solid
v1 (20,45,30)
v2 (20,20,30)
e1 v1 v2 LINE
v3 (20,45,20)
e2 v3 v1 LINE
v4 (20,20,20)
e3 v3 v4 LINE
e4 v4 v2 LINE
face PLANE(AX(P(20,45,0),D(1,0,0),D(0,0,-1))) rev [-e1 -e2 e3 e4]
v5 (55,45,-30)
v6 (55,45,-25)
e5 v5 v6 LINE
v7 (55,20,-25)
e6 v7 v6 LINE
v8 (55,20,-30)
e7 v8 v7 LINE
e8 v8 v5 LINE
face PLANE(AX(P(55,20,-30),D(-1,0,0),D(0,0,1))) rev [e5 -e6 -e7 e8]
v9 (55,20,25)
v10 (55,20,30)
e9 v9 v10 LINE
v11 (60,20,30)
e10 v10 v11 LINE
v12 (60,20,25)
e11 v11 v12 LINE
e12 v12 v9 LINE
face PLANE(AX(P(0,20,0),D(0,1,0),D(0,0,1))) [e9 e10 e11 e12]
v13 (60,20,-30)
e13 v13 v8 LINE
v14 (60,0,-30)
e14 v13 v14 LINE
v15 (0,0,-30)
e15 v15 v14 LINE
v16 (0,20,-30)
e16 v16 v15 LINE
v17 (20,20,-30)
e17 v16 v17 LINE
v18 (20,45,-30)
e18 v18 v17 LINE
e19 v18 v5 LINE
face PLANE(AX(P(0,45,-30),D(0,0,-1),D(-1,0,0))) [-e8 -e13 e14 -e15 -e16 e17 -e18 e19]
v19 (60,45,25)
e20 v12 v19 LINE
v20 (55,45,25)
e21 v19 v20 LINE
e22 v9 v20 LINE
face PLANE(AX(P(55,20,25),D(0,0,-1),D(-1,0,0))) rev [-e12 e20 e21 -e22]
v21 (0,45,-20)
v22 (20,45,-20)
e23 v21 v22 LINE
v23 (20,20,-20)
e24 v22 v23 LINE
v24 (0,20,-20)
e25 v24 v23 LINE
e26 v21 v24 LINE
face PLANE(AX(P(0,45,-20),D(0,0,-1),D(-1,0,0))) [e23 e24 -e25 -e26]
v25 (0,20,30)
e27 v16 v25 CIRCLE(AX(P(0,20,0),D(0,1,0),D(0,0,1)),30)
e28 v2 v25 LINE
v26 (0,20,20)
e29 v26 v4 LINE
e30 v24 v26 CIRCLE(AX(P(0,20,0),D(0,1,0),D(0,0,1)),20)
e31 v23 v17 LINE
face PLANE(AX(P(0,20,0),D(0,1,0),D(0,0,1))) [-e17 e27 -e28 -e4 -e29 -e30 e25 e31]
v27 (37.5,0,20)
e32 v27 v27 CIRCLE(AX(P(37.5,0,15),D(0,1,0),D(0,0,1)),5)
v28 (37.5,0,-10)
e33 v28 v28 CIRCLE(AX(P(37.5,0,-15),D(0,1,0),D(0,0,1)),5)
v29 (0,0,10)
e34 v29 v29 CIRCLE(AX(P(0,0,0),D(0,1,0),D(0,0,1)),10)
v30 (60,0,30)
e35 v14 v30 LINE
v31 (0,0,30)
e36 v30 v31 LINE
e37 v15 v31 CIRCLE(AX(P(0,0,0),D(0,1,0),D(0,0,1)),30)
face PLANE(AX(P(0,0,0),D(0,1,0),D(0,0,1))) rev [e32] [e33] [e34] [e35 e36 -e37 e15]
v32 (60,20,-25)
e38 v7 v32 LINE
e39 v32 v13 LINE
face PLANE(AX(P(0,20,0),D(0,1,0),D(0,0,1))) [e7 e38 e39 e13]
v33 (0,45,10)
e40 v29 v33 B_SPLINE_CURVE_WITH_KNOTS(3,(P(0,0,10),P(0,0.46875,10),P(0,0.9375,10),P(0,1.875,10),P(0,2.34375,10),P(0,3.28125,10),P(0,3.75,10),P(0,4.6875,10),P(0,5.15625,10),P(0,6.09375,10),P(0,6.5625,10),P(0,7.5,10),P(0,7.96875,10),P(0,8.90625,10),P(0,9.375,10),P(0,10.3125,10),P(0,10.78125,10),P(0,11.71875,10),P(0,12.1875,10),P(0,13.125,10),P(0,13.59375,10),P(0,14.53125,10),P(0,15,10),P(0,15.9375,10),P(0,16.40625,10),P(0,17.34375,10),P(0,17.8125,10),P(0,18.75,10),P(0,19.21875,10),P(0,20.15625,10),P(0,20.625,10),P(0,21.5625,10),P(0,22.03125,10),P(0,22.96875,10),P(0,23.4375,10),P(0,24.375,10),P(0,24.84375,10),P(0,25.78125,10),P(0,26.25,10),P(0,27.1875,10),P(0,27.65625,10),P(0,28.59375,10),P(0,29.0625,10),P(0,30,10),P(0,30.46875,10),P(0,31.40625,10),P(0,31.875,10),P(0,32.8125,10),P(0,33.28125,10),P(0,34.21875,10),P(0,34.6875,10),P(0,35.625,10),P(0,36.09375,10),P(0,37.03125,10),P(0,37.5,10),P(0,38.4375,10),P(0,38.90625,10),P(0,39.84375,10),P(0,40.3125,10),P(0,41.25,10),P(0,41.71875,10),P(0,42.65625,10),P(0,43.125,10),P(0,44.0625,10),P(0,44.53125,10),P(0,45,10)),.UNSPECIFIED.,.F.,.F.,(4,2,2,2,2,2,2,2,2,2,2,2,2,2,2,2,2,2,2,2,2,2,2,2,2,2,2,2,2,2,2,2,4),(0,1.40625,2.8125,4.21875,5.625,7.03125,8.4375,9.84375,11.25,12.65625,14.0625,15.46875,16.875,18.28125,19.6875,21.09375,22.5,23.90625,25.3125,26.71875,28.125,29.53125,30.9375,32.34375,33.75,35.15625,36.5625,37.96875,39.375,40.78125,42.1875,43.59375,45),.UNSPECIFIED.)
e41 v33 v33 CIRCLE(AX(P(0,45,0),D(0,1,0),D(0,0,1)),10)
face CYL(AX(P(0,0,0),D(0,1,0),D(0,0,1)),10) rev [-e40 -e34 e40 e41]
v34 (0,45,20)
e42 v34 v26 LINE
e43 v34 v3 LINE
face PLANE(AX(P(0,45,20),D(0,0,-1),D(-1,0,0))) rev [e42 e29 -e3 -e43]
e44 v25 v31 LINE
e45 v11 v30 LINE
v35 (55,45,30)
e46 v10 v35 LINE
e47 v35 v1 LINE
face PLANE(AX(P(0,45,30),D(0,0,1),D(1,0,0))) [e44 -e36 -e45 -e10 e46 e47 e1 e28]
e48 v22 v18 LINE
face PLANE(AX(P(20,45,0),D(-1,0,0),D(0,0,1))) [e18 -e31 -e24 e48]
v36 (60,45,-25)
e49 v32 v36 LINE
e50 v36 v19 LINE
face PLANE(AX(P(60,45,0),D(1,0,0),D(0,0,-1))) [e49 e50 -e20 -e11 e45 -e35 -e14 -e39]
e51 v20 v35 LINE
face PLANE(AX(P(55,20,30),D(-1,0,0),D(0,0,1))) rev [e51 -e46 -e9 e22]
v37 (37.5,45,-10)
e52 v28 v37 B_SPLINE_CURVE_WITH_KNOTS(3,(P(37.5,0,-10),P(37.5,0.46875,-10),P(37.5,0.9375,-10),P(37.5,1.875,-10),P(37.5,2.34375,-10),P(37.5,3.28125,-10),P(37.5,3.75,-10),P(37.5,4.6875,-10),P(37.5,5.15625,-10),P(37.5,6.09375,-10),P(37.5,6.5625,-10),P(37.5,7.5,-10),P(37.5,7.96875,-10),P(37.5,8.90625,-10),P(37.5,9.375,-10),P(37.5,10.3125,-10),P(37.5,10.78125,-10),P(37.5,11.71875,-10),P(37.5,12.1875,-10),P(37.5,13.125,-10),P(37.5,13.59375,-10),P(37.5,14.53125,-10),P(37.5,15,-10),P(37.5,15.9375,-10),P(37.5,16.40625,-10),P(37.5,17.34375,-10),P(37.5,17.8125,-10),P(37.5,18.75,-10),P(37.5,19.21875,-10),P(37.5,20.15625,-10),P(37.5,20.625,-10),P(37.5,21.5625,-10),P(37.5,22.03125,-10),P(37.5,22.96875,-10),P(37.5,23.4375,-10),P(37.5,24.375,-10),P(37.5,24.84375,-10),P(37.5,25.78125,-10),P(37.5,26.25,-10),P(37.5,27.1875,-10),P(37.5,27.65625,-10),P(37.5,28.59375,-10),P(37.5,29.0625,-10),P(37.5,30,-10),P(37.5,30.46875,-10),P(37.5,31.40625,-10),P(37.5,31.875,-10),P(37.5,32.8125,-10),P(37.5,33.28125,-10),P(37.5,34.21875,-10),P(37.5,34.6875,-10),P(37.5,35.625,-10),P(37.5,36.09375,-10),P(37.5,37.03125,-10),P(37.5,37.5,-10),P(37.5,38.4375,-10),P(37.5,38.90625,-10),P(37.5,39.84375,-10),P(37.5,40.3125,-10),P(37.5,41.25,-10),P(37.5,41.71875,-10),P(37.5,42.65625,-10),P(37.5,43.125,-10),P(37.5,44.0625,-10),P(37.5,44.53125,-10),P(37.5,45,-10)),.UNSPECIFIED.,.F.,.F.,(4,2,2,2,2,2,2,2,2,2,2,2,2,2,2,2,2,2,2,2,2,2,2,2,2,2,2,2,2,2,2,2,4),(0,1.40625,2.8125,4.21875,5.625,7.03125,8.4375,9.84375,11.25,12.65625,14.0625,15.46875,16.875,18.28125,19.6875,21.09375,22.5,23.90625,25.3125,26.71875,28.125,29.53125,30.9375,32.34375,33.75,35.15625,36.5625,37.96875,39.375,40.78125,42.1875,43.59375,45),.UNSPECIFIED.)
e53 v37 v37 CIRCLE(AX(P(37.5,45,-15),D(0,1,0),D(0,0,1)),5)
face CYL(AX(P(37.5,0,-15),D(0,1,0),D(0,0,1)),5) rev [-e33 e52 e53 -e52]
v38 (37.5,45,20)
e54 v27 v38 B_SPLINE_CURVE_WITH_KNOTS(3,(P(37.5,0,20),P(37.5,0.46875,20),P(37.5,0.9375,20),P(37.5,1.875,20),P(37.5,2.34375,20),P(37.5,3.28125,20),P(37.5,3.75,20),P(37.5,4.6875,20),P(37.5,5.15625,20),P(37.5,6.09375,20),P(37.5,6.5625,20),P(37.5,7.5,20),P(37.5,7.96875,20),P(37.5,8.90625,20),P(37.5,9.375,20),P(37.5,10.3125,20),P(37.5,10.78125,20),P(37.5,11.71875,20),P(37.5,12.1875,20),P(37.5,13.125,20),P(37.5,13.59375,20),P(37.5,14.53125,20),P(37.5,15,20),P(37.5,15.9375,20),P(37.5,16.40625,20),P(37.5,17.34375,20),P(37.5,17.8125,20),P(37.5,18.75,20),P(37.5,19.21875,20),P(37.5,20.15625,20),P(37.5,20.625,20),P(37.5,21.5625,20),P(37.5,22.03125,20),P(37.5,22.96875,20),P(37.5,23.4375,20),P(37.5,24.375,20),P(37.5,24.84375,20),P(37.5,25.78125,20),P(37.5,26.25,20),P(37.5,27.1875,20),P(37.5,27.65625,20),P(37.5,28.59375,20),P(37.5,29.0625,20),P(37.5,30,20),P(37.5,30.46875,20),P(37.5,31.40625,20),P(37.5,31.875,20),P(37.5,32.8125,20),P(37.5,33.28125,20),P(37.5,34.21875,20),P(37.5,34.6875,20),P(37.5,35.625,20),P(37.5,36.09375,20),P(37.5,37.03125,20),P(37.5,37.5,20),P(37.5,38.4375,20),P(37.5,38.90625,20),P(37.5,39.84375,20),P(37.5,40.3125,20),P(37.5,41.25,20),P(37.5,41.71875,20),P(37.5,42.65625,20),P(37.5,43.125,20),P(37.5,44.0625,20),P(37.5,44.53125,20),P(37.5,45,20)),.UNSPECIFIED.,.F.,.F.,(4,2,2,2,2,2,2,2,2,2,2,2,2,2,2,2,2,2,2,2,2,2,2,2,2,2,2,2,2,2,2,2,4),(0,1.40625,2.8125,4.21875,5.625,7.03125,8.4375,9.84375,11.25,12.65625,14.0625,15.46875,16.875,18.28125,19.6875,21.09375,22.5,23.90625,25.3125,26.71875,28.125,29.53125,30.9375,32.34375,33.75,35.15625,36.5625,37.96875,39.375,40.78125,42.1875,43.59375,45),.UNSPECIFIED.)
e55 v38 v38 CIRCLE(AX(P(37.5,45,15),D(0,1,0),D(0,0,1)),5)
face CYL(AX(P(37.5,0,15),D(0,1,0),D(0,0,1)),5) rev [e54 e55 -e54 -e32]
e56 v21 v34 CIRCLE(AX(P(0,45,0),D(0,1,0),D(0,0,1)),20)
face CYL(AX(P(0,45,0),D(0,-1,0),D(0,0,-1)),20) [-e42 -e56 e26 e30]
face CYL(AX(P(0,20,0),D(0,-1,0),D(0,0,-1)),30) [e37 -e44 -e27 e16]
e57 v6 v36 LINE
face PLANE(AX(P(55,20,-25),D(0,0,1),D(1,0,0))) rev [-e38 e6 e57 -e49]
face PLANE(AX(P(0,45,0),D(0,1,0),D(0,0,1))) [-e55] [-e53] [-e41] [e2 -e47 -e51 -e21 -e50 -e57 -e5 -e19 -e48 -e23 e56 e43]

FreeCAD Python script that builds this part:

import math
import FreeCAD as App
import Part
import Sketcher
from FreeCAD import Vector
Q = App.Units.Quantity


def add_polygon(sketch, points):
    """Adds a closed chain of lines whose ends are joined by coincident constraints."""
    first, n = sketch.GeometryCount, len(points)
    for a, b in zip(points, points[1:] + points[:1]):
        sketch.addGeometry(Part.LineSegment(App.Vector(*a, 0), App.Vector(*b, 0)), False)
    for i in range(n):
        sketch.addConstraint(Sketcher.Constraint("Coincident", first + i, 2, first + (i + 1) % n, 1))

doc = App.newDocument("Part")
body = doc.addObject("PartDesign::Body", "Body")

# Sketch on XZ plane
sketch1 = body.newObject("Sketcher::SketchObject", "Sketch")
sketch1.AttachmentSupport = (doc.getObject("XZ_Plane"), [""])
sketch1.MapMode = "FlatFace"
sketch1.addGeometry([
    Part.LineSegment(Vector(20, -20, 0), Vector(0, -20, 0)),  # 0
    Part.ArcOfCircle(Part.Circle(Vector(0, 0, 0), Vector(0, 0, 1), 20), math.radians(180), math.radians(270)),  # 1
    Part.ArcOfCircle(Part.Circle(Vector(0, 0, 0), Vector(0, 0, 1), 20), math.radians(90), math.radians(180)),  # 2
    Part.LineSegment(Vector(0, 20, 0), Vector(20, 20, 0)),  # 3
    Part.LineSegment(Vector(20, 20, 0), Vector(20, 30, 0)),  # 4
    Part.LineSegment(Vector(20, 30, 0), Vector(60, 30, 0)),  # 5
    Part.LineSegment(Vector(60, 30, 0), Vector(60, -30, 0)),  # 6
    Part.LineSegment(Vector(60, -30, 0), Vector(20, -30, 0)),  # 7
    Part.LineSegment(Vector(20, -30, 0), Vector(20, -20, 0)),  # 8
], False)
sketch1.addConstraint([
    Sketcher.Constraint("Tangent", 0, 2, 1, 2),
    Sketcher.Constraint("Tangent", 1, 1, 2, 2),
    Sketcher.Constraint("Tangent", 2, 1, 3, 1),
    Sketcher.Constraint("Coincident", 3, 2, 4, 1),
    Sketcher.Constraint("Coincident", 4, 2, 5, 1),
    Sketcher.Constraint("Coincident", 5, 2, 6, 1),
    Sketcher.Constraint("Coincident", 6, 2, 7, 1),
    Sketcher.Constraint("Coincident", 7, 2, 8, 1),
    Sketcher.Constraint("Coincident", 8, 2, 0, 1),
    Sketcher.Constraint("Horizontal", 0),
    Sketcher.Constraint("Horizontal", 3),
    Sketcher.Constraint("Vertical", 4),
    Sketcher.Constraint("Horizontal", 5),
    Sketcher.Constraint("Vertical", 6),
    Sketcher.Constraint("Horizontal", 7),
    Sketcher.Constraint("Vertical", 8),
    Sketcher.Constraint("Coincident", 1, 3, -1, 1),
    Sketcher.Constraint("Equal", 1, 2),
    Sketcher.Constraint("Symmetric", 4, 2, 7, 2, -1),
    Sketcher.Constraint("PointOnObject", 1, 1, -1),
    Sketcher.Constraint("Radius", 1, Q("20 mm")),
    Sketcher.Constraint("DistanceX", 0, 2, 0, 1, Q("20 mm")),
    Sketcher.Constraint("DistanceX", 5, 1, 5, 2, Q("40 mm")),
    Sketcher.Constraint("DistanceY", 4, 1, 4, 2, Q("10 mm")),
])
pad1 = body.newObject("PartDesign::Pad", "Pad")
pad1.Profile = sketch1
pad1.Length = 45
pad1.Reversed = True

# Sketch on XZ plane
sketch2 = body.newObject("Sketcher::SketchObject", "Sketch001")
sketch2.AttachmentSupport = (doc.getObject("XZ_Plane"), [""])
sketch2.MapMode = "FlatFace"
sketch2.addGeometry([
    Part.LineSegment(Vector(20, -30, 0), Vector(0, -30, 0)),  # 0
    Part.ArcOfCircle(Part.Circle(Vector(0, 0, 0), Vector(0, 0, 1), 30), math.radians(90), math.radians(270)),  # 1
    Part.LineSegment(Vector(0, 30, 0), Vector(20, 30, 0)),  # 2
    Part.LineSegment(Vector(20, 30, 0), Vector(20, 20, 0)),  # 3
    Part.LineSegment(Vector(20, 20, 0), Vector(0, 20, 0)),  # 4
    Part.ArcOfCircle(Part.Circle(Vector(0, 0, 0), Vector(0, 0, 1), 20), math.radians(90), math.radians(270)),  # 5
    Part.LineSegment(Vector(0, -20, 0), Vector(20, -20, 0)),  # 6
    Part.LineSegment(Vector(20, -20, 0), Vector(20, -30, 0)),  # 7
], False)
sketch2.addConstraint([
    Sketcher.Constraint("Tangent", 0, 2, 1, 2),
    Sketcher.Constraint("Tangent", 1, 1, 2, 1),
    Sketcher.Constraint("Coincident", 2, 2, 3, 1),
    Sketcher.Constraint("Coincident", 3, 2, 4, 1),
    Sketcher.Constraint("Tangent", 4, 2, 5, 1),
    Sketcher.Constraint("Tangent", 5, 2, 6, 1),
    Sketcher.Constraint("Coincident", 6, 2, 7, 1),
    Sketcher.Constraint("Coincident", 7, 2, 0, 1),
    Sketcher.Constraint("Horizontal", 0),
    Sketcher.Constraint("Horizontal", 2),
    Sketcher.Constraint("Vertical", 3),
    Sketcher.Constraint("Horizontal", 4),
    Sketcher.Constraint("Horizontal", 6),
    Sketcher.Constraint("Vertical", 7),
    Sketcher.Constraint("Coincident", 1, 3, -1, 1),
    Sketcher.Constraint("Coincident", 5, 3, -1, 1),
    Sketcher.Constraint("Vertical", 3, 2, 6, 2),
    Sketcher.Constraint("Radius", 1, Q("30 mm")),
    Sketcher.Constraint("Radius", 5, Q("20 mm")),
    Sketcher.Constraint("DistanceX", 0, 2, 0, 1, Q("20 mm")),
])
pad2 = body.newObject("PartDesign::Pad", "Pad001")
pad2.Profile = sketch2
pad2.Length = 20
pad2.Reversed = True

# Sketch on XZ plane
sketch3 = body.newObject("Sketcher::SketchObject", "Sketch002")
sketch3.AttachmentSupport = (doc.getObject("XZ_Plane"), [""])
sketch3.MapMode = "FlatFace"
sketch3.AttachmentOffset = App.Placement(Vector(0, 0, -45), App.Rotation())
add_polygon(sketch3, [(55, 25), (55, 30), (60, 30), (60, 25)])  # lines 0-3
add_polygon(sketch3, [(55, -30), (55, -25), (60, -25), (60, -30)])  # lines 4-7
sketch3.addConstraint([
    Sketcher.Constraint("Vertical", 0),
    Sketcher.Constraint("Horizontal", 1),
    Sketcher.Constraint("Vertical", 2),
    Sketcher.Constraint("Horizontal", 3),
    Sketcher.Constraint("Vertical", 4),
    Sketcher.Constraint("Horizontal", 5),
    Sketcher.Constraint("Vertical", 6),
    Sketcher.Constraint("Horizontal", 7),
    Sketcher.Constraint("Symmetric", 3, 2, 4, 2, -1),
    Sketcher.Constraint("Symmetric", 1, 2, 6, 2, -1),
    Sketcher.Constraint("Equal", 7, 0),
    Sketcher.Constraint("DistanceX", 1, 1, 1, 2, Q("5 mm")),
    Sketcher.Constraint("DistanceX", -1, 1, 0, 2, Q("55 mm")),
    Sketcher.Constraint("DistanceY", -1, 1, 0, 2, Q("30 mm")),
])
pocket1 = body.newObject("PartDesign::Pocket", "Pocket")
pocket1.Profile = sketch3
pocket1.Length = 25
pocket1.Reversed = True

# Sketch on XZ plane
sketch4 = body.newObject("Sketcher::SketchObject", "Sketch003")
sketch4.AttachmentSupport = (doc.getObject("XZ_Plane"), [""])
sketch4.MapMode = "FlatFace"
sketch4.AttachmentOffset = App.Placement(Vector(0, 0, -45), App.Rotation())
sketch4.addGeometry([
    Part.Circle(Vector(0, 0, 0), Vector(0, 0, 1), 10),
    Part.Circle(Vector(38, -15, 0), Vector(0, 0, 1), 5),
    Part.Circle(Vector(38, 15, 0), Vector(0, 0, 1), 5),
], False)
sketch4.addConstraint([
    Sketcher.Constraint("Coincident", 0, 3, -1, 1),
    Sketcher.Constraint("Equal", 1, 2),
    Sketcher.Constraint("Symmetric", 1, 3, 2, 3, -1),
    Sketcher.Constraint("Diameter", 0, Q("20 mm")),
    Sketcher.Constraint("Diameter", 1, Q("10 mm")),
    Sketcher.Constraint("DistanceY", 1, 3, -1, 1, Q("15 mm")),
    Sketcher.Constraint("DistanceX", -1, 1, 1, 3, Q("37.5 mm")),
])
pocket2 = body.newObject("PartDesign::Pocket", "Pocket001")
pocket2.Profile = sketch4
pocket2.Type = "ThroughAll"
pocket2.Reversed = True

doc.recompute()
